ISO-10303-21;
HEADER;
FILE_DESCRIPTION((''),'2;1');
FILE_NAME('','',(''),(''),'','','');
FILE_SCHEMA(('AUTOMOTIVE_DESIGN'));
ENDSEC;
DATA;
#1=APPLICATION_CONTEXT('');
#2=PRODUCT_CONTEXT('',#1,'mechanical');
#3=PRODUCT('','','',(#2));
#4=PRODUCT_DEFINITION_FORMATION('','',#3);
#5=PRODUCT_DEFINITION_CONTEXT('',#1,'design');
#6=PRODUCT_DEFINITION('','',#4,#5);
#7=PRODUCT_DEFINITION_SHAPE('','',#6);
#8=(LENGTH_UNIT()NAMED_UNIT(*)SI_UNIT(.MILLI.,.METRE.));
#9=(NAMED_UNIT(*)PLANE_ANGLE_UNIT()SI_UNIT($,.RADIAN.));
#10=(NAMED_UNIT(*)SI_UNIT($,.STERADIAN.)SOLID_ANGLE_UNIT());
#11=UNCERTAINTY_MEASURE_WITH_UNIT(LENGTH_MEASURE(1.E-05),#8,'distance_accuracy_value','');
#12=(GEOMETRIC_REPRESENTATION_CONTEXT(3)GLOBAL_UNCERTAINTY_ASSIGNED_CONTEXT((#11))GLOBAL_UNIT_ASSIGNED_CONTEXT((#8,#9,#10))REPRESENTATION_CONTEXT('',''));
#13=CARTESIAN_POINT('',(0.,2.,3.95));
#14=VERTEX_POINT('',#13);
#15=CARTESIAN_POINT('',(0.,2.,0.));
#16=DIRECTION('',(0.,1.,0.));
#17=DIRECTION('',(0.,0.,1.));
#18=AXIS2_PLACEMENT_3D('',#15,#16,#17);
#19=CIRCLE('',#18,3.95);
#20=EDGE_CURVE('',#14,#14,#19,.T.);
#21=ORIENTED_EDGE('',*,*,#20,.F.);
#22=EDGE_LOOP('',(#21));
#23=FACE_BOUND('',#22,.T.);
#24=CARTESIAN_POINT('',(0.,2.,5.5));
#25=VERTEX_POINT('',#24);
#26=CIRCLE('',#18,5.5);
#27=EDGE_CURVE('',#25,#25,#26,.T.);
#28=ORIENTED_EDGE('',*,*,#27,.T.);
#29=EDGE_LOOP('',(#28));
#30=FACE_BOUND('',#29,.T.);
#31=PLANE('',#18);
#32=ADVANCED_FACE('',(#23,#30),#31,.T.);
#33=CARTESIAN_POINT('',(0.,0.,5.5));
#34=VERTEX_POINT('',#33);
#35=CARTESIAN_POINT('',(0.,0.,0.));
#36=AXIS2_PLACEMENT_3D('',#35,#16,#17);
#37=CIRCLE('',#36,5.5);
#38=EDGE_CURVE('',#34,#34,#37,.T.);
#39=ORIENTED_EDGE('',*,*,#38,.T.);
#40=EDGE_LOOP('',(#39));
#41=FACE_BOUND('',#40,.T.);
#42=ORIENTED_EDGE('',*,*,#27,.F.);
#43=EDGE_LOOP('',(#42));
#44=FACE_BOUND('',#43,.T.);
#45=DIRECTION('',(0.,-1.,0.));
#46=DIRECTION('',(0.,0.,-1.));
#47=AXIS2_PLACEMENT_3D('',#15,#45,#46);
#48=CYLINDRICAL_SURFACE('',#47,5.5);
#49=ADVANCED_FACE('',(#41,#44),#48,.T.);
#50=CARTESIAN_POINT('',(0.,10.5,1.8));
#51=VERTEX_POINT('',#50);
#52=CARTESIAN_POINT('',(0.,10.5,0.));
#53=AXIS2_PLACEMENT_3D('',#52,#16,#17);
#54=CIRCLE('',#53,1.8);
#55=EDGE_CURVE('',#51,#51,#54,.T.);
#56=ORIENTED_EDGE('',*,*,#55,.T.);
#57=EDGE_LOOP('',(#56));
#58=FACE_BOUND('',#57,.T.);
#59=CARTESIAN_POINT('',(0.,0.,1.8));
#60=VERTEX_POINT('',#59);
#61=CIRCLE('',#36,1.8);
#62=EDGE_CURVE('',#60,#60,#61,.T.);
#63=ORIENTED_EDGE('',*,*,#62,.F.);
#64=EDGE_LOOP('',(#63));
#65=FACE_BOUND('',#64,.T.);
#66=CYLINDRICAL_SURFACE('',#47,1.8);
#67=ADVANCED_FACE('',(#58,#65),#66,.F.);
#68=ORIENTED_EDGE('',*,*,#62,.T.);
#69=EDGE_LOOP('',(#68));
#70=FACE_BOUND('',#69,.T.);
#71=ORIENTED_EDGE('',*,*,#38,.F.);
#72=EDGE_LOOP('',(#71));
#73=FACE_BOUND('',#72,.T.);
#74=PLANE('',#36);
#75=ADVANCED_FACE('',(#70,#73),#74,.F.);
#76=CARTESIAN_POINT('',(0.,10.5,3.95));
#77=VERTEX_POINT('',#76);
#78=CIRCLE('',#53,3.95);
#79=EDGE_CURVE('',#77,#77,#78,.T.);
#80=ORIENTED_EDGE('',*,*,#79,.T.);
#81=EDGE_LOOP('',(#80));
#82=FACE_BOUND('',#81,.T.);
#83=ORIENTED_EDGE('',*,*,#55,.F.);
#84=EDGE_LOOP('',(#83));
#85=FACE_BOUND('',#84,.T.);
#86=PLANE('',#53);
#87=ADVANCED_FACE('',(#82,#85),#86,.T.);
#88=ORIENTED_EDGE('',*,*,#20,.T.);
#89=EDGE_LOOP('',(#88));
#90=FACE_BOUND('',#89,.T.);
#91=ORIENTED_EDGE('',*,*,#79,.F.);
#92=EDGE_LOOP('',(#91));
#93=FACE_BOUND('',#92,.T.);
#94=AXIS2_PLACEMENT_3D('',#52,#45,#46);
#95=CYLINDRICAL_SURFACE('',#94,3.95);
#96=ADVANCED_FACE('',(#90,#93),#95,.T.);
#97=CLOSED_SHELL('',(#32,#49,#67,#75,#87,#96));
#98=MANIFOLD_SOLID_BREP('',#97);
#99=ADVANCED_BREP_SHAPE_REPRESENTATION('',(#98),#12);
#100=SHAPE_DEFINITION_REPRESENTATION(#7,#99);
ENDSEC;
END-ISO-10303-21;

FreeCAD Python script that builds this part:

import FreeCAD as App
import Part
import Sketcher
Q = App.Units.Quantity

doc = App.newDocument("Part")
body = doc.addObject("PartDesign::Body", "Body")

sketch1 = doc.addObject("Sketcher::SketchObject", "Sketch")
body.addObject(sketch1)
sketch1.AttachmentSupport = (doc.XZ_Plane, [""])
sketch1.MapMode = "FlatFace"
sketch1.addGeometry([
    Part.Circle(App.Vector(0, 0, 0), App.Vector(0, 0, 1), 5.5),
    Part.Circle(App.Vector(0, 0, 0), App.Vector(0, 0, 1), 1.8),
], False)
sketch1.addConstraint([
    Sketcher.Constraint("Coincident", 0, 3, -1, 1),
    Sketcher.Constraint("Coincident", 1, 3, -1, 1),
    Sketcher.Constraint("Diameter", 0, Q("11 mm")),
    Sketcher.Constraint("Diameter", 1, Q("3.6 mm")),
])
pad1 = doc.addObject("PartDesign::Pad", "Pad")
body.addObject(pad1)
pad1.Profile = sketch1
pad1.Length = 2
pad1.Reversed = True

sketch2 = doc.addObject("Sketcher::SketchObject", "Sketch001")
body.addObject(sketch2)
sketch2.AttachmentSupport = (doc.XZ_Plane, [""])
sketch2.MapMode = "FlatFace"
sketch2.AttachmentOffset = App.Placement(App.Vector(0, 0, -2), App.Rotation())
sketch2.addGeometry([
    Part.Circle(App.Vector(0, 0, 0), App.Vector(0, 0, 1), 3.95),
    Part.Circle(App.Vector(0, 0, 0), App.Vector(0, 0, 1), 1.8),
], False)
sketch2.addConstraint([
    Sketcher.Constraint("Coincident", 0, 3, -1, 1),
    Sketcher.Constraint("Coincident", 1, 3, -1, 1),
    Sketcher.Constraint("Diameter", 0, Q("7.9 mm")),
    Sketcher.Constraint("Diameter", 1, Q("3.6 mm")),
])
pad2 = doc.addObject("PartDesign::Pad", "Pad001")
body.addObject(pad2)
pad2.Profile = sketch2
pad2.Length = 8.5
pad2.Reversed = True

doc.recompute()
